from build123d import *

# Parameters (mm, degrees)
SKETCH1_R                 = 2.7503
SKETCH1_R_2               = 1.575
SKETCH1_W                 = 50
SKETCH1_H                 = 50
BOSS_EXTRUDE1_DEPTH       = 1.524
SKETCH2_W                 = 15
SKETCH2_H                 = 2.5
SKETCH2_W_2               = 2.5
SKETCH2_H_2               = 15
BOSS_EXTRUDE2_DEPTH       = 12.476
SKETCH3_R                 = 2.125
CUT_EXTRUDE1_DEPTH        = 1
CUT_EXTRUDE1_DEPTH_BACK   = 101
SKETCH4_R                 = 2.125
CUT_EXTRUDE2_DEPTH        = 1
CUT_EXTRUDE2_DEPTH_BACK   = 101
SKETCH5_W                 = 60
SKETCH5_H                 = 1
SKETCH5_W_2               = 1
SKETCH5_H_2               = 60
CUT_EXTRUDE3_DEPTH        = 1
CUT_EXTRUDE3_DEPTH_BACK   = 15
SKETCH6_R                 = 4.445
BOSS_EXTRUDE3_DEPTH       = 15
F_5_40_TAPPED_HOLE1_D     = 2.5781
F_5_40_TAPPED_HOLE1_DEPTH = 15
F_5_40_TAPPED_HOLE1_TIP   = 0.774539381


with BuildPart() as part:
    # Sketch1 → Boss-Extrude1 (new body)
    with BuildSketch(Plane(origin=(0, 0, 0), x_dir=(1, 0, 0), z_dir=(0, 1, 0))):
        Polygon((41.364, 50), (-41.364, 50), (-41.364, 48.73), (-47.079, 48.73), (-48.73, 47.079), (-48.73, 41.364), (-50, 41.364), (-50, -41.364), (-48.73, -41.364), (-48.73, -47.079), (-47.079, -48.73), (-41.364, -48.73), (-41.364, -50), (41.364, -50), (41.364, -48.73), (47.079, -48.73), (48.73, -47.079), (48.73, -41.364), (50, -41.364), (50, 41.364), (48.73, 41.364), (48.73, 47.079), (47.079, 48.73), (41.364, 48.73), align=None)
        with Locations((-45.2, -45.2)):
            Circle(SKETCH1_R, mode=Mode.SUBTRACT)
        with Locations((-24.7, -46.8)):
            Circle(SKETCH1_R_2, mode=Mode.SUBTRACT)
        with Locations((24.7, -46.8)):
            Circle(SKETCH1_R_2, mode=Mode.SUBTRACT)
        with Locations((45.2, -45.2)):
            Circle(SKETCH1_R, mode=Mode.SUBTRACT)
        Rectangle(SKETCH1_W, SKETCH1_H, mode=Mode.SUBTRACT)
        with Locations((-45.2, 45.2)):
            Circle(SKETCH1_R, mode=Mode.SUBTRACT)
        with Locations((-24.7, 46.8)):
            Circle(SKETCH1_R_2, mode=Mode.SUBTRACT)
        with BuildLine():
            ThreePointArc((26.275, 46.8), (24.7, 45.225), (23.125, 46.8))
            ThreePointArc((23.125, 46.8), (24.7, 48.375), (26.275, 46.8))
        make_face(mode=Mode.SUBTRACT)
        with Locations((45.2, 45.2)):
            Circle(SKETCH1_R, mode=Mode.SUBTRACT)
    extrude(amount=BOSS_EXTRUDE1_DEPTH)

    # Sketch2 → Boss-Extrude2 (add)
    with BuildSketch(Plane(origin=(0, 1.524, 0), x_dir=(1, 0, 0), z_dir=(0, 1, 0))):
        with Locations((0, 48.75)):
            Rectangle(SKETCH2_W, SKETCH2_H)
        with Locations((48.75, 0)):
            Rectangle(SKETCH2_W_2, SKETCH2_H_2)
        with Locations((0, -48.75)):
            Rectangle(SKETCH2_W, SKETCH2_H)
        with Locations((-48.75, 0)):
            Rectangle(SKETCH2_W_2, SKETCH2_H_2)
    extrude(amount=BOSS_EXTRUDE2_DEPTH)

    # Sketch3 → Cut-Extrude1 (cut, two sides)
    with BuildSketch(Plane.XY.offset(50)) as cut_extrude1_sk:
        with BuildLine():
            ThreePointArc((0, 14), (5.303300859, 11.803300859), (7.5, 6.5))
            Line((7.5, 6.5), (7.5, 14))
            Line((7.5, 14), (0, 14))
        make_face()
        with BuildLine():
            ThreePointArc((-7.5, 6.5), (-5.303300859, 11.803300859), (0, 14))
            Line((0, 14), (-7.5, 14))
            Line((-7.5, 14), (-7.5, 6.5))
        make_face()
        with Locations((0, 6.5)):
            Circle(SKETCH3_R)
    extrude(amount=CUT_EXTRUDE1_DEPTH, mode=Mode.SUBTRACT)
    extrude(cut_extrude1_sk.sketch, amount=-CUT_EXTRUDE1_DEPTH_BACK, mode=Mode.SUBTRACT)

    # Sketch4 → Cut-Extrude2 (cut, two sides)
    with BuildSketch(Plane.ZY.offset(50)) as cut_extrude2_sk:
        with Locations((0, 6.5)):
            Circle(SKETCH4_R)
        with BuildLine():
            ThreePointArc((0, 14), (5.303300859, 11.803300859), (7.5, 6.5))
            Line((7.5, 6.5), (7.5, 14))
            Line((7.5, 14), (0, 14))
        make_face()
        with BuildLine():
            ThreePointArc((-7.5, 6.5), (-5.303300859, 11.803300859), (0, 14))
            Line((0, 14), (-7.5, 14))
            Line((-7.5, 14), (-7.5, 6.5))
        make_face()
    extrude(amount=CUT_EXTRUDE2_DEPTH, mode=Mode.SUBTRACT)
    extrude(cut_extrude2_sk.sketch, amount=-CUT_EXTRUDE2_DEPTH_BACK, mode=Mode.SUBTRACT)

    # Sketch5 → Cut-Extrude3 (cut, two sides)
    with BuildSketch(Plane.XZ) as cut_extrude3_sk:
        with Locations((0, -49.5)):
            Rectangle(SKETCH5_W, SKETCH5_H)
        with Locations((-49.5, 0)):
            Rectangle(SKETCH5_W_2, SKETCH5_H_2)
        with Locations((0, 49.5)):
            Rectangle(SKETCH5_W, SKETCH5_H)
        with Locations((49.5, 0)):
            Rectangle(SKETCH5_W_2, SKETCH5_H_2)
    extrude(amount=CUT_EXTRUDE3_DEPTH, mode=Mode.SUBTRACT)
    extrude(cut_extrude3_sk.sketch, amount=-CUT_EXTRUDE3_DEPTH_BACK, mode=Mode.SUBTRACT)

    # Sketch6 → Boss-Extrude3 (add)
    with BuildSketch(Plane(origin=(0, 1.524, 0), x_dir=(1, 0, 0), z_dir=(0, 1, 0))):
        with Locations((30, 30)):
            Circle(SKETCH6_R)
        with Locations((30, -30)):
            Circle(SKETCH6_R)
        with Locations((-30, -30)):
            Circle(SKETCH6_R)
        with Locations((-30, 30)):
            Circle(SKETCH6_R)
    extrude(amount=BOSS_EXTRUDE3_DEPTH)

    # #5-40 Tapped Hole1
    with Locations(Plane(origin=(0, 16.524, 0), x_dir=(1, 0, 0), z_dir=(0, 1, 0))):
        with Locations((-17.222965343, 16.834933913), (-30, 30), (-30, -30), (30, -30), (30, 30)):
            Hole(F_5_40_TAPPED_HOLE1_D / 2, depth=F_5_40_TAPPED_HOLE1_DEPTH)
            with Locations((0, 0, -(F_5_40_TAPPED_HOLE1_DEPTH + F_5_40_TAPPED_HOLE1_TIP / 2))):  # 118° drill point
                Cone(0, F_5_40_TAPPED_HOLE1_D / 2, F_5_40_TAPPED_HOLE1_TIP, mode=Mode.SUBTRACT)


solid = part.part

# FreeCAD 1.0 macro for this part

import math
import FreeCAD as App
import Part
import Sketcher
Q = App.Units.Quantity

doc = App.newDocument("Part")
params = doc.addObject("Spreadsheet::Sheet", "Params")
for row, (alias, value) in enumerate([
    ("sketch1_diameter", "3.15 mm"),
    ("sketch1_width", "50 mm"),
    ("sketch1_width2", "1.27 mm"),
    ("pad1_length", "1.524 mm"),
    ("sketch2_width", "15 mm"),
    ("sketch2_width2", "2.5 mm"),
    ("pad2_length", "12.476 mm"),
    ("sketch3_radius", "7.5 mm"),
    ("sketch3_diameter", "4.25 mm"),
    ("sketch4_radius", "7.5 mm"),
    ("sketch4_diameter", "4.25 mm"),
    ("sketch5_width", "60 mm"),
    ("sketch5_width2", "1 mm"),
    ("sketch6_diameter", "8.89 mm"),
    ("pad3_length", "15 mm"),
    ("hole_diameter", "2.5781 mm"),
    ("hole_depth", "15 mm"),
], start=1):
    params.set(f"A{row}", alias)
    params.set(f"B{row}", "=" + value)
    params.setAlias(f"B{row}", alias)

body = doc.addObject("PartDesign::Body", "Body")

# Sketch on XZ plane
sketch1 = body.newObject("Sketcher::SketchObject", "Sketch")
sketch1.AttachmentSupport = (doc.getObject("XZ_Plane"), [""])
sketch1.MapMode = "FlatFace"
sketch1.addGeometry([
    Part.LineSegment(App.Vector(41.4, -50, 0), App.Vector(-41.4, -50, 0)),  # 0
    Part.LineSegment(App.Vector(-41.4, -50, 0), App.Vector(-41.4, -48.7, 0)),  # 1
    Part.LineSegment(App.Vector(-41.4, -48.7, 0), App.Vector(-47.1, -48.7, 0)),  # 2
    Part.LineSegment(App.Vector(-47.1, -48.7, 0), App.Vector(-48.7, -47.1, 0)),  # 3
    Part.LineSegment(App.Vector(-48.7, -47.1, 0), App.Vector(-48.7, -41.4, 0)),  # 4
    Part.LineSegment(App.Vector(-48.7, -41.4, 0), App.Vector(-50, -41.4, 0)),  # 5
    Part.LineSegment(App.Vector(-50, -41.4, 0), App.Vector(-50, 41.4, 0)),  # 6
    Part.LineSegment(App.Vector(-50, 41.4, 0), App.Vector(-48.7, 41.4, 0)),  # 7
    Part.LineSegment(App.Vector(-48.7, 41.4, 0), App.Vector(-48.7, 47.1, 0)),  # 8
    Part.LineSegment(App.Vector(-48.7, 47.1, 0), App.Vector(-47.1, 48.7, 0)),  # 9
    Part.LineSegment(App.Vector(-47.1, 48.7, 0), App.Vector(-41.4, 48.7, 0)),  # 10
    Part.LineSegment(App.Vector(-41.4, 48.7, 0), App.Vector(-41.4, 50, 0)),  # 11
    Part.LineSegment(App.Vector(-41.4, 50, 0), App.Vector(41.4, 50, 0)),  # 12
    Part.LineSegment(App.Vector(41.4, 50, 0), App.Vector(41.4, 48.7, 0)),  # 13
    Part.LineSegment(App.Vector(41.4, 48.7, 0), App.Vector(47.1, 48.7, 0)),  # 14
    Part.LineSegment(App.Vector(47.1, 48.7, 0), App.Vector(48.7, 47.1, 0)),  # 15
    Part.LineSegment(App.Vector(48.7, 47.1, 0), App.Vector(48.7, 41.4, 0)),  # 16
    Part.LineSegment(App.Vector(48.7, 41.4, 0), App.Vector(50, 41.4, 0)),  # 17
    Part.LineSegment(App.Vector(50, 41.4, 0), App.Vector(50, -41.4, 0)),  # 18
    Part.LineSegment(App.Vector(50, -41.4, 0), App.Vector(48.7, -41.4, 0)),  # 19
    Part.LineSegment(App.Vector(48.7, -41.4, 0), App.Vector(48.7, -47.1, 0)),  # 20
    Part.LineSegment(App.Vector(48.7, -47.1, 0), App.Vector(47.1, -48.7, 0)),  # 21
    Part.LineSegment(App.Vector(47.1, -48.7, 0), App.Vector(41.4, -48.7, 0)),  # 22
    Part.LineSegment(App.Vector(41.4, -48.7, 0), App.Vector(41.4, -50, 0)),  # 23
    Part.Circle(App.Vector(-45.2, 45.2, 0), App.Vector(0, 0, 1), 2.8),  # 24
    Part.Circle(App.Vector(-24.7, 46.8, 0), App.Vector(0, 0, 1), 1.6),  # 25
    Part.Circle(App.Vector(24.7, 46.8, 0), App.Vector(0, 0, 1), 1.6),  # 26
    Part.Circle(App.Vector(45.2, 45.2, 0), App.Vector(0, 0, 1), 2.8),  # 27
    Part.Circle(App.Vector(-45.2, -45.2, 0), App.Vector(0, 0, 1), 2.8),  # 28
    Part.Circle(App.Vector(-24.7, -46.8, 0), App.Vector(0, 0, 1), 1.6),  # 29
    Part.LineSegment(App.Vector(25, 25, 0), App.Vector(-25, 25, 0)),  # 30
    Part.LineSegment(App.Vector(-25, 25, 0), App.Vector(-25, -25, 0)),  # 31
    Part.LineSegment(App.Vector(-25, -25, 0), App.Vector(25, -25, 0)),  # 32
    Part.LineSegment(App.Vector(25, -25, 0), App.Vector(25, 25, 0)),  # 33
    Part.Circle(App.Vector(24.7, -46.8, 0), App.Vector(0, 0, 1), 1.6),  # 34
    Part.Circle(App.Vector(45.2, -45.2, 0), App.Vector(0, 0, 1), 2.8),  # 35
], False)
sketch1.addConstraint([
    Sketcher.Constraint("Coincident", 0, 2, 1, 1),
    Sketcher.Constraint("Coincident", 1, 2, 2, 1),
    Sketcher.Constraint("Coincident", 2, 2, 3, 1),
    Sketcher.Constraint("Coincident", 3, 2, 4, 1),
    Sketcher.Constraint("Coincident", 4, 2, 5, 1),
    Sketcher.Constraint("Coincident", 5, 2, 6, 1),
    Sketcher.Constraint("Coincident", 6, 2, 7, 1),
    Sketcher.Constraint("Coincident", 7, 2, 8, 1),
    Sketcher.Constraint("Coincident", 8, 2, 9, 1),
    Sketcher.Constraint("Coincident", 9, 2, 10, 1),
    Sketcher.Constraint("Coincident", 10, 2, 11, 1),
    Sketcher.Constraint("Coincident", 11, 2, 12, 1),
    Sketcher.Constraint("Coincident", 12, 2, 13, 1),
    Sketcher.Constraint("Coincident", 13, 2, 14, 1),
    Sketcher.Constraint("Coincident", 14, 2, 15, 1),
    Sketcher.Constraint("Coincident", 15, 2, 16, 1),
    Sketcher.Constraint("Coincident", 16, 2, 17, 1),
    Sketcher.Constraint("Coincident", 17, 2, 18, 1),
    Sketcher.Constraint("Coincident", 18, 2, 19, 1),
    Sketcher.Constraint("Coincident", 19, 2, 20, 1),
    Sketcher.Constraint("Coincident", 20, 2, 21, 1),
    Sketcher.Constraint("Coincident", 21, 2, 22, 1),
    Sketcher.Constraint("Coincident", 22, 2, 23, 1),
    Sketcher.Constraint("Coincident", 23, 2, 0, 1),
    Sketcher.Constraint("Coincident", 30, 2, 31, 1),
    Sketcher.Constraint("Coincident", 31, 2, 32, 1),
    Sketcher.Constraint("Coincident", 32, 2, 33, 1),
    Sketcher.Constraint("Coincident", 33, 2, 30, 1),
    Sketcher.Constraint("Horizontal", 0),
    Sketcher.Constraint("Vertical", 1),
    Sketcher.Constraint("Horizontal", 2),
    Sketcher.Constraint("Vertical", 4),
    Sketcher.Constraint("Horizontal", 5),
    Sketcher.Constraint("Vertical", 6),
    Sketcher.Constraint("Horizontal", 7),
    Sketcher.Constraint("Vertical", 8),
    Sketcher.Constraint("Horizontal", 10),
    Sketcher.Constraint("Vertical", 11),
    Sketcher.Constraint("Horizontal", 12),
    Sketcher.Constraint("Vertical", 13),
    Sketcher.Constraint("Horizontal", 14),
    Sketcher.Constraint("Vertical", 16),
    Sketcher.Constraint("Horizontal", 17),
    Sketcher.Constraint("Vertical", 18),
    Sketcher.Constraint("Horizontal", 19),
    Sketcher.Constraint("Vertical", 20),
    Sketcher.Constraint("Horizontal", 22),
    Sketcher.Constraint("Vertical", 23),
    Sketcher.Constraint("Horizontal", 30),
    Sketcher.Constraint("Vertical", 31),
    Sketcher.Constraint("Horizontal", 32),
    Sketcher.Constraint("Vertical", 33),
    Sketcher.Constraint("Equal", 25, 26),
    Sketcher.Constraint("Equal", 24, 27),
    Sketcher.Constraint("Equal", 27, 28),
    Sketcher.Constraint("Equal", 26, 29),
    Sketcher.Constraint("Equal", 29, 34),
    Sketcher.Constraint("Equal", 28, 35),
    Sketcher.Constraint("Symmetric", 27, 3, 28, 3, -1, 1),
    Sketcher.Constraint("Symmetric", 26, 3, 29, 3, -1, 1),
    Sketcher.Constraint("Symmetric", 25, 3, 34, 3, -1, 1),
    Sketcher.Constraint("Symmetric", 24, 3, 35, 3, -1, 1),
    Sketcher.Constraint("Symmetric", 0, 2, 12, 2, -1, 1),
    Sketcher.Constraint("Symmetric", 2, 2, 14, 2, -1, 1),
    Sketcher.Constraint("Symmetric", 3, 2, 15, 2, -1, 1),
    Sketcher.Constraint("Symmetric", 5, 2, 17, 2, -1, 1),
    Sketcher.Constraint("Symmetric", 7, 2, 19, 2, -1, 1),
    Sketcher.Constraint("Symmetric", 9, 2, 21, 2, -1, 1),
    Sketcher.Constraint("Symmetric", 30, 2, 32, 2, -1, 1),
    Sketcher.Constraint("Symmetric", 25, 3, 26, 3, -2),
    Sketcher.Constraint("Symmetric", 24, 3, 27, 3, -2),
    Sketcher.Constraint("Symmetric", 10, 2, 13, 2, -2),
    Sketcher.Constraint("Symmetric", 8, 2, 15, 2, -2),
    Sketcher.Constraint("Perpendicular", 3, 9),
    Sketcher.Constraint("Perpendicular", 15, 21),
    Sketcher.Constraint("Horizontal", 7, 2, 16, 2),
    Sketcher.Constraint("Vertical", 2, 2, 9, 2),
    Sketcher.Constraint("Vertical", 13, 2, 22, 2),
    Sketcher.Constraint("Equal", 19, 1),
    Sketcher.Constraint("Equal", 22, 4),
    Sketcher.Constraint("Equal", 12, 6),
    Sketcher.Constraint("Equal", 32, 31),
    Sketcher.Constraint("Diameter", 25, Q("3.15 mm")),
    Sketcher.Constraint("DistanceX", 30, 2, 30, 1, Q("50 mm")),
    Sketcher.Constraint("DistanceY", 0, 2, -1, 1, Q("50 mm")),
    Sketcher.Constraint("DistanceY", 28, 3, 25, 3, Q("92 mm")),
    Sketcher.Constraint("Diameter", 24, Q("5.5006 mm")),
    Sketcher.Constraint("DistanceX", 5, 2, 5, 1, Q("1.27 mm")),
    Sketcher.Constraint("DistanceX", 24, 3, -1, 1, Q("45.2 mm")),
    Sketcher.Constraint("DistanceY", -1, 1, 24, 3, Q("45.2 mm")),
    Sketcher.Constraint("DistanceX", 25, 3, -1, 1, Q("24.7 mm")),
    Sketcher.Constraint("DistanceX", 0, 2, 0, 1, Q("82.728 mm")),
    Sketcher.Constraint("DistanceX", 2, 2, 2, 1, Q("5.715 mm")),
])
sketch1.setExpression("Constraints[82]", "Params.sketch1_diameter")
sketch1.setExpression("Constraints[83]", "Params.sketch1_width")
sketch1.setExpression("Constraints[87]", "Params.sketch1_width2")
pad1 = body.newObject("PartDesign::Pad", "Pad")
pad1.Profile = sketch1
pad1.setExpression("Length", "Params.pad1_length")
pad1.Reversed = True

# Sketch on XZ plane
sketch2 = body.newObject("Sketcher::SketchObject", "Sketch001")
sketch2.AttachmentSupport = (doc.getObject("XZ_Plane"), [""])
sketch2.MapMode = "FlatFace"
sketch2.AttachmentOffset = App.Placement(App.Vector(0, 0, -1.524), App.Rotation())
sketch2.addGeometry([
    Part.LineSegment(App.Vector(-7.5, -50, 0), App.Vector(-7.5, -47.5, 0)),  # 0
    Part.LineSegment(App.Vector(-7.5, -47.5, 0), App.Vector(7.5, -47.5, 0)),  # 1
    Part.LineSegment(App.Vector(7.5, -47.5, 0), App.Vector(7.5, -50, 0)),  # 2
    Part.LineSegment(App.Vector(7.5, -50, 0), App.Vector(-7.5, -50, 0)),  # 3
    Part.LineSegment(App.Vector(47.5, -7.5, 0), App.Vector(47.5, 7.5, 0)),  # 4
    Part.LineSegment(App.Vector(47.5, 7.5, 0), App.Vector(50, 7.5, 0)),  # 5
    Part.LineSegment(App.Vector(50, 7.5, 0), App.Vector(50, -7.5, 0)),  # 6
    Part.LineSegment(App.Vector(50, -7.5, 0), App.Vector(47.5, -7.5, 0)),  # 7
    Part.LineSegment(App.Vector(-7.5, 47.5, 0), App.Vector(-7.5, 50, 0)),  # 8
    Part.LineSegment(App.Vector(-7.5, 50, 0), App.Vector(7.5, 50, 0)),  # 9
    Part.LineSegment(App.Vector(7.5, 50, 0), App.Vector(7.5, 47.5, 0)),  # 10
    Part.LineSegment(App.Vector(7.5, 47.5, 0), App.Vector(-7.5, 47.5, 0)),  # 11
    Part.LineSegment(App.Vector(-50, -7.5, 0), App.Vector(-50, 7.5, 0)),  # 12
    Part.LineSegment(App.Vector(-50, 7.5, 0), App.Vector(-47.5, 7.5, 0)),  # 13
    Part.LineSegment(App.Vector(-47.5, 7.5, 0), App.Vector(-47.5, -7.5, 0)),  # 14
    Part.LineSegment(App.Vector(-47.5, -7.5, 0), App.Vector(-50, -7.5, 0)),  # 15
], False)
sketch2.addConstraint([
    Sketcher.Constraint("Coincident", 0, 2, 1, 1),
    Sketcher.Constraint("Coincident", 1, 2, 2, 1),
    Sketcher.Constraint("Coincident", 2, 2, 3, 1),
    Sketcher.Constraint("Coincident", 3, 2, 0, 1),
    Sketcher.Constraint("Coincident", 4, 2, 5, 1),
    Sketcher.Constraint("Coincident", 5, 2, 6, 1),
    Sketcher.Constraint("Coincident", 6, 2, 7, 1),
    Sketcher.Constraint("Coincident", 7, 2, 4, 1),
    Sketcher.Constraint("Coincident", 8, 2, 9, 1),
    Sketcher.Constraint("Coincident", 9, 2, 10, 1),
    Sketcher.Constraint("Coincident", 10, 2, 11, 1),
    Sketcher.Constraint("Coincident", 11, 2, 8, 1),
    Sketcher.Constraint("Coincident", 12, 2, 13, 1),
    Sketcher.Constraint("Coincident", 13, 2, 14, 1),
    Sketcher.Constraint("Coincident", 14, 2, 15, 1),
    Sketcher.Constraint("Coincident", 15, 2, 12, 1),
    Sketcher.Constraint("Vertical", 0),
    Sketcher.Constraint("Horizontal", 1),
    Sketcher.Constraint("Vertical", 2),
    Sketcher.Constraint("Horizontal", 3),
    Sketcher.Constraint("Vertical", 4),
    Sketcher.Constraint("Horizontal", 5),
    Sketcher.Constraint("Vertical", 6),
    Sketcher.Constraint("Horizontal", 7),
    Sketcher.Constraint("Vertical", 8),
    Sketcher.Constraint("Horizontal", 9),
    Sketcher.Constraint("Vertical", 10),
    Sketcher.Constraint("Horizontal", 11),
    Sketcher.Constraint("Vertical", 12),
    Sketcher.Constraint("Horizontal", 13),
    Sketcher.Constraint("Vertical", 14),
    Sketcher.Constraint("Horizontal", 15),
    Sketcher.Constraint("Symmetric", 2, 2, 8, 2, -1, 1),
    Sketcher.Constraint("Symmetric", 0, 2, 10, 2, -1, 1),
    Sketcher.Constraint("Symmetric", 6, 2, 12, 2, -1, 1),
    Sketcher.Constraint("Symmetric", 4, 2, 14, 2, -1, 1),
    Sketcher.Constraint("Horizontal", 5, 2, 12, 2),
    Sketcher.Constraint("Vertical", 3, 2, 8, 2),
    Sketcher.Constraint("Equal", 15, 0),
    Sketcher.Constraint("Equal", 11, 4),
    Sketcher.Constraint("DistanceX", 1, 1, 1, 2, Q("15 mm")),
    Sketcher.Constraint("DistanceX", 5, 1, 5, 2, Q("2.5 mm")),
    Sketcher.Constraint("DistanceY", 2, 2, -1, 1, Q("50 mm")),
    Sketcher.Constraint("DistanceX", -1, 1, 5, 2, Q("50 mm")),
])
sketch2.setExpression("Constraints[40]", "Params.sketch2_width")
sketch2.setExpression("Constraints[41]", "Params.sketch2_width2")
pad2 = body.newObject("PartDesign::Pad", "Pad001")
pad2.Profile = sketch2
pad2.setExpression("Length", "Params.pad2_length")
pad2.Reversed = True

# Sketch on XY plane
sketch3 = body.newObject("Sketcher::SketchObject", "Sketch002")
sketch3.AttachmentSupport = (doc.getObject("XY_Plane"), [""])
sketch3.MapMode = "FlatFace"
sketch3.AttachmentOffset = App.Placement(App.Vector(0, 0, 50), App.Rotation())
sketch3.addGeometry([
    Part.ArcOfCircle(Part.Circle(App.Vector(0, 6.5, 0), App.Vector(0, 0, 1), 7.5), math.radians(0), math.radians(90)),  # 0
    Part.LineSegment(App.Vector(7.5, 6.5, 0), App.Vector(7.5, 14, 0)),  # 1
    Part.LineSegment(App.Vector(7.5, 14, 0), App.Vector(0, 14, 0)),  # 2
    Part.ArcOfCircle(Part.Circle(App.Vector(0, 6.5, 0), App.Vector(0, 0, 1), 7.5), math.radians(90), math.radians(180)),  # 3
    Part.LineSegment(App.Vector(0, 14, 0), App.Vector(-7.5, 14, 0)),  # 4
    Part.LineSegment(App.Vector(-7.5, 14, 0), App.Vector(-7.5, 6.5, 0)),  # 5
    Part.Circle(App.Vector(0, 6.5, 0), App.Vector(0, 0, 1), 2.1),  # 6
], False)
sketch3.addConstraint([
    Sketcher.Constraint("Tangent", 0, 1, 1, 1),
    Sketcher.Constraint("Coincident", 1, 2, 2, 1),
    Sketcher.Constraint("Tangent", 2, 2, 0, 2),
    Sketcher.Constraint("Tangent", 3, 1, 4, 1),
    Sketcher.Constraint("Coincident", 4, 2, 5, 1),
    Sketcher.Constraint("Tangent", 5, 2, 3, 2),
    Sketcher.Constraint("Vertical", 1),
    Sketcher.Constraint("Horizontal", 2),
    Sketcher.Constraint("Horizontal", 4),
    Sketcher.Constraint("Vertical", 5),
    Sketcher.Constraint("Coincident", 3, 3, 0, 3),
    Sketcher.Constraint("Coincident", 6, 3, 0, 3),
    Sketcher.Constraint("Equal", 0, 3),
    Sketcher.Constraint("PointOnObject", 0, 3, -2),
    Sketcher.Constraint("Radius", 0, Q("7.5 mm")),
    Sketcher.Constraint("Diameter", 6, Q("4.25 mm")),
    Sketcher.Constraint("DistanceY", -1, 1, 1, 2, Q("14 mm")),
])
sketch3.setExpression("Constraints[14]", "Params.sketch3_radius")
sketch3.setExpression("Constraints[15]", "Params.sketch3_diameter")
pocket1 = body.newObject("PartDesign::Pocket", "Pocket")
pocket1.Profile = sketch3
pocket1.Type = "ThroughAll"
pocket1.Midplane = True

# Sketch on YZ plane
sketch4 = body.newObject("Sketcher::SketchObject", "Sketch003")
sketch4.AttachmentSupport = (doc.getObject("YZ_Plane"), [""])
sketch4.MapMode = "FlatFace"
sketch4.AttachmentOffset = App.Placement(App.Vector(0, 0, -50), App.Rotation())
sketch4.addGeometry([
    Part.Circle(App.Vector(6.5, 0, 0), App.Vector(0, 0, 1), 2.1),  # 0
    Part.ArcOfCircle(Part.Circle(App.Vector(6.5, 0, 0), App.Vector(0, 0, 1), 7.5), math.radians(0), math.radians(90)),  # 1
    Part.LineSegment(App.Vector(6.5, 7.5, 0), App.Vector(14, 7.5, 0)),  # 2
    Part.LineSegment(App.Vector(14, 7.5, 0), App.Vector(14, 0, 0)),  # 3
    Part.ArcOfCircle(Part.Circle(App.Vector(6.5, 0, 0), App.Vector(0, 0, 1), 7.5), math.radians(-90), math.radians(0)),  # 4
    Part.LineSegment(App.Vector(14, 0, 0), App.Vector(14, -7.5, 0)),  # 5
    Part.LineSegment(App.Vector(14, -7.5, 0), App.Vector(6.5, -7.5, 0)),  # 6
], False)
sketch4.addConstraint([
    Sketcher.Constraint("Tangent", 1, 2, 2, 1),
    Sketcher.Constraint("Coincident", 2, 2, 3, 1),
    Sketcher.Constraint("Tangent", 3, 2, 1, 1),
    Sketcher.Constraint("Tangent", 4, 2, 5, 1),
    Sketcher.Constraint("Coincident", 5, 2, 6, 1),
    Sketcher.Constraint("Tangent", 6, 2, 4, 1),
    Sketcher.Constraint("Horizontal", 2),
    Sketcher.Constraint("Vertical", 3),
    Sketcher.Constraint("Vertical", 5),
    Sketcher.Constraint("Horizontal", 6),
    Sketcher.Constraint("Coincident", 1, 3, 0, 3),
    Sketcher.Constraint("Coincident", 4, 3, 0, 3),
    Sketcher.Constraint("Equal", 1, 4),
    Sketcher.Constraint("PointOnObject", 0, 3, -1),
    Sketcher.Constraint("Radius", 1, Q("7.5 mm")),
    Sketcher.Constraint("Diameter", 0, Q("4.25 mm")),
    Sketcher.Constraint("DistanceX", -1, 1, 2, 2, Q("14 mm")),
])
sketch4.setExpression("Constraints[14]", "Params.sketch4_radius")
sketch4.setExpression("Constraints[15]", "Params.sketch4_diameter")
pocket2 = body.newObject("PartDesign::Pocket", "Pocket001")
pocket2.Profile = sketch4
pocket2.Type = "ThroughAll"
pocket2.Midplane = True

# Sketch on XZ plane
sketch5 = body.newObject("Sketcher::SketchObject", "Sketch004")
sketch5.AttachmentSupport = (doc.getObject("XZ_Plane"), [""])
sketch5.MapMode = "FlatFace"
sketch5.addGeometry([
    Part.LineSegment(App.Vector(-30, -49, 0), App.Vector(-30, -50, 0)),  # 0
    Part.LineSegment(App.Vector(-30, -50, 0), App.Vector(30, -50, 0)),  # 1
    Part.LineSegment(App.Vector(30, -50, 0), App.Vector(30, -49, 0)),  # 2
    Part.LineSegment(App.Vector(30, -49, 0), App.Vector(-30, -49, 0)),  # 3
    Part.LineSegment(App.Vector(-50, 30, 0), App.Vector(-50, -30, 0)),  # 4
    Part.LineSegment(App.Vector(-50, -30, 0), App.Vector(-49, -30, 0)),  # 5
    Part.LineSegment(App.Vector(-49, -30, 0), App.Vector(-49, 30, 0)),  # 6
    Part.LineSegment(App.Vector(-49, 30, 0), App.Vector(-50, 30, 0)),  # 7
    Part.LineSegment(App.Vector(-30, 50, 0), App.Vector(-30, 49, 0)),  # 8
    Part.LineSegment(App.Vector(-30, 49, 0), App.Vector(30, 49, 0)),  # 9
    Part.LineSegment(App.Vector(30, 49, 0), App.Vector(30, 50, 0)),  # 10
    Part.LineSegment(App.Vector(30, 50, 0), App.Vector(-30, 50, 0)),  # 11
    Part.LineSegment(App.Vector(49, 30, 0), App.Vector(49, -30, 0)),  # 12
    Part.LineSegment(App.Vector(49, -30, 0), App.Vector(50, -30, 0)),  # 13
    Part.LineSegment(App.Vector(50, -30, 0), App.Vector(50, 30, 0)),  # 14
    Part.LineSegment(App.Vector(50, 30, 0), App.Vector(49, 30, 0)),  # 15
], False)
sketch5.addConstraint([
    Sketcher.Constraint("Coincident", 0, 2, 1, 1),
    Sketcher.Constraint("Coincident", 1, 2, 2, 1),
    Sketcher.Constraint("Coincident", 2, 2, 3, 1),
    Sketcher.Constraint("Coincident", 3, 2, 0, 1),
    Sketcher.Constraint("Coincident", 4, 2, 5, 1),
    Sketcher.Constraint("Coincident", 5, 2, 6, 1),
    Sketcher.Constraint("Coincident", 6, 2, 7, 1),
    Sketcher.Constraint("Coincident", 7, 2, 4, 1),
    Sketcher.Constraint("Coincident", 8, 2, 9, 1),
    Sketcher.Constraint("Coincident", 9, 2, 10, 1),
    Sketcher.Constraint("Coincident", 10, 2, 11, 1),
    Sketcher.Constraint("Coincident", 11, 2, 8, 1),
    Sketcher.Constraint("Coincident", 12, 2, 13, 1),
    Sketcher.Constraint("Coincident", 13, 2, 14, 1),
    Sketcher.Constraint("Coincident", 14, 2, 15, 1),
    Sketcher.Constraint("Coincident", 15, 2, 12, 1),
    Sketcher.Constraint("Vertical", 0),
    Sketcher.Constraint("Horizontal", 1),
    Sketcher.Constraint("Vertical", 2),
    Sketcher.Constraint("Horizontal", 3),
    Sketcher.Constraint("Vertical", 4),
    Sketcher.Constraint("Horizontal", 5),
    Sketcher.Constraint("Vertical", 6),
    Sketcher.Constraint("Horizontal", 7),
    Sketcher.Constraint("Vertical", 8),
    Sketcher.Constraint("Horizontal", 9),
    Sketcher.Constraint("Vertical", 10),
    Sketcher.Constraint("Horizontal", 11),
    Sketcher.Constraint("Vertical", 12),
    Sketcher.Constraint("Horizontal", 13),
    Sketcher.Constraint("Vertical", 14),
    Sketcher.Constraint("Horizontal", 15),
    Sketcher.Constraint("Symmetric", 2, 2, 8, 2, -1, 1),
    Sketcher.Constraint("Symmetric", 0, 2, 10, 2, -1, 1),
    Sketcher.Constraint("Symmetric", 6, 2, 12, 2, -1, 1),
    Sketcher.Constraint("Symmetric", 4, 2, 14, 2, -1, 1),
    Sketcher.Constraint("Horizontal", 5, 2, 12, 2),
    Sketcher.Constraint("Vertical", 3, 2, 8, 2),
    Sketcher.Constraint("Equal", 15, 0),
    Sketcher.Constraint("Equal", 11, 4),
    Sketcher.Constraint("DistanceX", 1, 1, 1, 2, Q("60 mm")),
    Sketcher.Constraint("DistanceX", 5, 1, 5, 2, Q("1 mm")),
    Sketcher.Constraint("DistanceY", 0, 2, -1, 1, Q("50 mm")),
    Sketcher.Constraint("DistanceX", 4, 2, -1, 1, Q("50 mm")),
])
sketch5.setExpression("Constraints[40]", "Params.sketch5_width")
sketch5.setExpression("Constraints[41]", "Params.sketch5_width2")
pocket3 = body.newObject("PartDesign::Pocket", "Pocket002")
pocket3.Profile = sketch5
pocket3.Type = "ThroughAll"
pocket3.Midplane = True

# Sketch on XZ plane
sketch6 = body.newObject("Sketcher::SketchObject", "Sketch005")
sketch6.AttachmentSupport = (doc.getObject("XZ_Plane"), [""])
sketch6.MapMode = "FlatFace"
sketch6.AttachmentOffset = App.Placement(App.Vector(0, 0, -1.524), App.Rotation())
sketch6.addGeometry([
    Part.Circle(App.Vector(30, -30, 0), App.Vector(0, 0, 1), 4.4),
    Part.Circle(App.Vector(30, 30, 0), App.Vector(0, 0, 1), 4.4),
    Part.Circle(App.Vector(-30, 30, 0), App.Vector(0, 0, 1), 4.4),
    Part.Circle(App.Vector(-30, -30, 0), App.Vector(0, 0, 1), 4.4),
], False)
sketch6.addConstraint([
    Sketcher.Constraint("Equal", 0, 1),
    Sketcher.Constraint("Equal", 1, 2),
    Sketcher.Constraint("Equal", 2, 3),
    Sketcher.Constraint("Symmetric", 0, 3, 2, 3, -1, 1),
    Sketcher.Constraint("Symmetric", 1, 3, 3, 3, -1, 1),
    Sketcher.Constraint("Symmetric", 1, 3, 2, 3, -2),
    Sketcher.Constraint("Diameter", 0, Q("8.89 mm")),
    Sketcher.Constraint("DistanceX", -1, 1, 0, 3, Q("30 mm")),
    Sketcher.Constraint("DistanceY", 0, 3, -1, 1, Q("30 mm")),
])
sketch6.setExpression("Constraints[6]", "Params.sketch6_diameter")
pad3 = body.newObject("PartDesign::Pad", "Pad002")
pad3.Profile = sketch6
pad3.setExpression("Length", "Params.pad3_length")
pad3.Reversed = True

# Sketch on XZ plane
sketch7 = body.newObject("Sketcher::SketchObject", "Sketch006")
sketch7.AttachmentSupport = (doc.getObject("XZ_Plane"), [""])
sketch7.MapMode = "FlatFace"
sketch7.AttachmentOffset = App.Placement(App.Vector(0, 0, -16.524), App.Rotation())
sketch7.addGeometry([
    Part.Circle(App.Vector(-17.2, -16.8, 0), App.Vector(0, 0, 1), 1.3),  # 0
    Part.Circle(App.Vector(-30, -30, 0), App.Vector(0, 0, 1), 1.3),  # 1
    Part.Circle(App.Vector(-30, 30, 0), App.Vector(0, 0, 1), 1.3),  # 2
    Part.Circle(App.Vector(30, 30, 0), App.Vector(0, 0, 1), 1.3),  # 3
    Part.Circle(App.Vector(30, -30, 0), App.Vector(0, 0, 1), 1.3),  # 4
], False)
sketch7.addConstraint([
    Sketcher.Constraint("Equal", 0, 1),
    Sketcher.Constraint("Equal", 1, 2),
    Sketcher.Constraint("Equal", 2, 3),
    Sketcher.Constraint("Equal", 3, 4),
    Sketcher.Constraint("Symmetric", 1, 3, 3, 3, -1, 1),
    Sketcher.Constraint("Symmetric", 2, 3, 4, 3, -1, 1),
    Sketcher.Constraint("Symmetric", 2, 3, 3, 3, -2),
    Sketcher.Constraint("DistanceX", 1, 3, -1, 1, Q("30 mm")),
    Sketcher.Constraint("DistanceY", 1, 3, -1, 1, Q("30 mm")),
    Sketcher.Constraint("Diameter", 0, Q("2.5781 mm")),
    Sketcher.Constraint("DistanceX", 0, 3, -1, 1, Q("17.222965 mm")),
    Sketcher.Constraint("DistanceY", 0, 3, -1, 1, Q("16.834934 mm")),
])
doc.recompute()
hole = body.newObject("PartDesign::Hole", "Hole")
hole.Profile = sketch7
hole.ThreadType = "None"
hole.setExpression("Diameter", "Params.hole_diameter")
hole.DepthType = "Dimension"
hole.setExpression("Depth", "Params.hole_depth")
hole.DrillPoint = "Angled"
hole.DrillPointAngle = 118
hole.Reversed = True

doc.recompute()
